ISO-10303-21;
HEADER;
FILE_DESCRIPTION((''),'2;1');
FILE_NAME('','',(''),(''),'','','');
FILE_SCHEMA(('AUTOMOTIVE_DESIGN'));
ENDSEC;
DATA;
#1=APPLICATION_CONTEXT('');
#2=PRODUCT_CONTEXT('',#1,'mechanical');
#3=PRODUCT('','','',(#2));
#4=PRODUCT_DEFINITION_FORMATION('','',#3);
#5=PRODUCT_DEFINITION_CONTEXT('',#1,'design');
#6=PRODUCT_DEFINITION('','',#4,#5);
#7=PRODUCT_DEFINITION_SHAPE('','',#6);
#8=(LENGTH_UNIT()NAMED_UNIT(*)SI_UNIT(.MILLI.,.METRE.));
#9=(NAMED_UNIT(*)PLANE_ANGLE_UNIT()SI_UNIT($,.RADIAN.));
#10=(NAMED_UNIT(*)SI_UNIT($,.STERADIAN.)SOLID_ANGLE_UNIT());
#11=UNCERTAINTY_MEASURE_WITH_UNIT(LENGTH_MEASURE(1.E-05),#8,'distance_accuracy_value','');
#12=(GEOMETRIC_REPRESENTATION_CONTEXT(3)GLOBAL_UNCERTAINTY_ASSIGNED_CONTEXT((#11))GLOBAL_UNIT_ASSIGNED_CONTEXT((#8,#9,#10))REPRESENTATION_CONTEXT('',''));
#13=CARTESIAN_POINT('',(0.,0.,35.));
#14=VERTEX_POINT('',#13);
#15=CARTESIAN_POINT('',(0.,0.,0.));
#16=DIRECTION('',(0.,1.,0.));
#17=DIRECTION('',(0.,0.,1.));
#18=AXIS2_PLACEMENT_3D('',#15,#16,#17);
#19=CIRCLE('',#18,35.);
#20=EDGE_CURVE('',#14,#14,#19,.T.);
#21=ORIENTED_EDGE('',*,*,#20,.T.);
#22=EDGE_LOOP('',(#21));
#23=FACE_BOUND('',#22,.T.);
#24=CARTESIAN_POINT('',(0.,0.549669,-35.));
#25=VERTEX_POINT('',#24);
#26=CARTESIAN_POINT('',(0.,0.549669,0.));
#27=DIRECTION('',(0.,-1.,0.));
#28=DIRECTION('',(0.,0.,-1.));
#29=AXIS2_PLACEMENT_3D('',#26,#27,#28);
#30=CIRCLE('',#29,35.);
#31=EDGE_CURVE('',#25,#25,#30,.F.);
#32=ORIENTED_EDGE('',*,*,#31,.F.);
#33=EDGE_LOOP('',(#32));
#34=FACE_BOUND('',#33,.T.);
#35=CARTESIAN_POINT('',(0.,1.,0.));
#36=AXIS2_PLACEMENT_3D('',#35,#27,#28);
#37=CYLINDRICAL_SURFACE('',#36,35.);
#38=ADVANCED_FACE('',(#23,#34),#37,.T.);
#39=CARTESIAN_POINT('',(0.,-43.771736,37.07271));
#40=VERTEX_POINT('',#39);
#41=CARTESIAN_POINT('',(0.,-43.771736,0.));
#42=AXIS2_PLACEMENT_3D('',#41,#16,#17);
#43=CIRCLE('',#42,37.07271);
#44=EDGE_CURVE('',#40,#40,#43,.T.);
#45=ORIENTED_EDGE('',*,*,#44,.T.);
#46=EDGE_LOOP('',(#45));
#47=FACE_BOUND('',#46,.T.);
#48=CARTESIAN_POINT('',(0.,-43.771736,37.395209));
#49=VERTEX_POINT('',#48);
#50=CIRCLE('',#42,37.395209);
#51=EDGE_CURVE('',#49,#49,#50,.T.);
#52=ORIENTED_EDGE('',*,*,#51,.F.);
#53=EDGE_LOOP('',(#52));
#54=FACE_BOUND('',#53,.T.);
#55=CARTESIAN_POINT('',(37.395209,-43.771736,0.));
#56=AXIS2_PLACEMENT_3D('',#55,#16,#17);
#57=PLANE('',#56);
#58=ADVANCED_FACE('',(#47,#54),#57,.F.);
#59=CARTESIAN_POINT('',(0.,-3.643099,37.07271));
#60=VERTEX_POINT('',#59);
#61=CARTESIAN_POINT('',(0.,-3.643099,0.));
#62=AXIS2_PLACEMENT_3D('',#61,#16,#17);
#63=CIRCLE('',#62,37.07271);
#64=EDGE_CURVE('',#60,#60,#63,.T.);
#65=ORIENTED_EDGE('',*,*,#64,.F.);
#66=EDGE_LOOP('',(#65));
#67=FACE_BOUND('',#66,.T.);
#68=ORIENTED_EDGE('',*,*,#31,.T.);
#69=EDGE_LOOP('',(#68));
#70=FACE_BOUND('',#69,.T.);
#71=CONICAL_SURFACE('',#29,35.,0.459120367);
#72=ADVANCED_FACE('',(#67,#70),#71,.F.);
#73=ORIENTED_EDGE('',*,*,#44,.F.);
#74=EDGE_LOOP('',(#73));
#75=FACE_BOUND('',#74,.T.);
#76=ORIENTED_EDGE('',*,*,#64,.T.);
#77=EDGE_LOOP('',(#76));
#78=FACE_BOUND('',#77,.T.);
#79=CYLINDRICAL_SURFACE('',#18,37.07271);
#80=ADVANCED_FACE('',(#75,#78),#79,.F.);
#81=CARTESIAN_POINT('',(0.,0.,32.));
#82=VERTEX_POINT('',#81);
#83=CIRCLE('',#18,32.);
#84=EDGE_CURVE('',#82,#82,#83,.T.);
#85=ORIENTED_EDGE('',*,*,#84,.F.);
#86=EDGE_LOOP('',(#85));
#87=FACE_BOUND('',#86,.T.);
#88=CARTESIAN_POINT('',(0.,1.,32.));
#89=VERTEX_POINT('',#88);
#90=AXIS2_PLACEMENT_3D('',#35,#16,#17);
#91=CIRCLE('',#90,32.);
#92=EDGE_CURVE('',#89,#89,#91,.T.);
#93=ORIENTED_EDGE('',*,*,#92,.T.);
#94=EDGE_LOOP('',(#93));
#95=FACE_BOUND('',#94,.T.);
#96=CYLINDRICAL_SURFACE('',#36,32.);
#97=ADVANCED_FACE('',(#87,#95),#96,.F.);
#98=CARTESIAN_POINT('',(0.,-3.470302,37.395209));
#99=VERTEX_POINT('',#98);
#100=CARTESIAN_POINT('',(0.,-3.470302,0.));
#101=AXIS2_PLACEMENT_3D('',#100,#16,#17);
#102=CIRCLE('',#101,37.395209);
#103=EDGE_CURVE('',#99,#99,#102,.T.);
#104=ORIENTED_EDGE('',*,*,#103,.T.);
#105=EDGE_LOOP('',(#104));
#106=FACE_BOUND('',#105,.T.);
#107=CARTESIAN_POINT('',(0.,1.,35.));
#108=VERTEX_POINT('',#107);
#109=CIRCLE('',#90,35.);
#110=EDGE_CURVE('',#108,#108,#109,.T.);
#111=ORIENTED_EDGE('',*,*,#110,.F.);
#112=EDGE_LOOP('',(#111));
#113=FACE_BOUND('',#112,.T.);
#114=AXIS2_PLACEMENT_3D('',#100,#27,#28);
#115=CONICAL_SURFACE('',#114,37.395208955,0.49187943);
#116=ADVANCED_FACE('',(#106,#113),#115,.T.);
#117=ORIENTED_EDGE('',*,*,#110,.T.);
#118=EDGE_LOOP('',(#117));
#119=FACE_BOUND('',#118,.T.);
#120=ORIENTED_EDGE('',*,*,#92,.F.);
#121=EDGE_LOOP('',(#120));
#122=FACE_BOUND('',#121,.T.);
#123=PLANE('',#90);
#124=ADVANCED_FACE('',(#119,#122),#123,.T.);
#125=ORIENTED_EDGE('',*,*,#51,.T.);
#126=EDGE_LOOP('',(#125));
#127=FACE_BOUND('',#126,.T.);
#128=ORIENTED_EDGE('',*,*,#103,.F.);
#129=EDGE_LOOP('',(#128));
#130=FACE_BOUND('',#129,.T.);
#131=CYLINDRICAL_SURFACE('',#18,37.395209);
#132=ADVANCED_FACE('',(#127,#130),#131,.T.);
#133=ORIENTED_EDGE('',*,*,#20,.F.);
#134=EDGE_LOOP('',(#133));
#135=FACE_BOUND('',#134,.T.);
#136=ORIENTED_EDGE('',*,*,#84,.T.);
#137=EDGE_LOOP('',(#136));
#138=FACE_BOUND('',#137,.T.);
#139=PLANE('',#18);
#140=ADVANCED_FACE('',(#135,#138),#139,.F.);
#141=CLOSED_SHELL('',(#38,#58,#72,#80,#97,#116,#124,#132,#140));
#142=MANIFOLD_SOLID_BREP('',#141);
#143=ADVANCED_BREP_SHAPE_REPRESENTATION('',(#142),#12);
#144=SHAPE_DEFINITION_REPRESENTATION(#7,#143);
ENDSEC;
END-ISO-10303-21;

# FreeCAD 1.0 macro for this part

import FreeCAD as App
import Part
import Sketcher
Q = App.Units.Quantity


def add_polygon(sketch, points):
    """Adds a closed chain of lines whose ends are joined by coincident constraints."""
    first, n = sketch.GeometryCount, len(points)
    for a, b in zip(points, points[1:] + points[:1]):
        sketch.addGeometry(Part.LineSegment(App.Vector(*a, 0), App.Vector(*b, 0)), False)
    for i in range(n):
        sketch.addConstraint(Sketcher.Constraint("Coincident", first + i, 2, first + (i + 1) % n, 1))

doc = App.newDocument("Part")
body = doc.addObject("PartDesign::Body", "Body")

sketch1 = body.newObject("Sketcher::SketchObject", "Sketch")
sketch1.AttachmentSupport = (doc.getObject("XZ_Plane"), [""])
sketch1.MapMode = "FlatFace"
sketch1.addGeometry(Part.Circle(App.Vector(0, 0, 0), App.Vector(0, 0, 1), 35), False)
sketch1.addGeometry(Part.Circle(App.Vector(0, 0, 0), App.Vector(0, 0, 1), 32), False)
sketch1.addConstraint(Sketcher.Constraint("Coincident", 0, 3, -1, 1))
sketch1.addConstraint(Sketcher.Constraint("Coincident", 1, 3, -1, 1))
sketch1.addConstraint(Sketcher.Constraint("Diameter", 0, Q("70 mm")))
sketch1.addConstraint(Sketcher.Constraint("Diameter", 1, Q("64 mm")))
pad1 = body.newObject("PartDesign::Pad", "Pad")
pad1.Profile = sketch1
pad1.Length = 1
pad1.Reversed = True

sketch2 = body.newObject("Sketcher::SketchObject", "Sketch001")
sketch2.AttachmentSupport = (doc.getObject("XY_Plane"), [""])
sketch2.MapMode = "FlatFace"
add_polygon(sketch2, [(37.4, -3.47), (35, 1), (35, 0.55), (37.07, -3.64), (37.07, -43.77), (37.4, -43.77)])
sketch2.addConstraint(Sketcher.Constraint("Vertical", 1))
sketch2.addConstraint(Sketcher.Constraint("Vertical", 3))
sketch2.addConstraint(Sketcher.Constraint("Horizontal", 4))
sketch2.addConstraint(Sketcher.Constraint("Vertical", 5))
sketch2.addConstraint(Sketcher.Constraint("DistanceX", -1, 1, 0, 2, Q("35 mm")))
sketch2.addConstraint(Sketcher.Constraint("DistanceY", -1, 1, 0, 2, Q("1 mm")))
sketch2.addConstraint(Sketcher.Constraint("DistanceX", 4, 1, 4, 2, Q("0.322499 mm")))
sketch2.addConstraint(Sketcher.Constraint("DistanceY", 1, 2, 1, 1, Q("0.450331 mm")))
sketch2.addConstraint(Sketcher.Constraint("DistanceY", 2, 2, -1, 1, Q("3.643099 mm")))
sketch2.addConstraint(Sketcher.Constraint("Distance", 0, Q("5.071551 mm")))
sketch2.addConstraint(Sketcher.Constraint("DistanceY", 3, 2, 3, 1, Q("40.128637 mm")))
sketch2.addConstraint(Sketcher.Constraint("DistanceY", 5, 1, 5, 2, Q("40.301433 mm")))
revolution = body.newObject("PartDesign::Revolution", "Revolution")
revolution.Profile = sketch2
revolution.ReferenceAxis = (sketch2, ["V_Axis"])
revolution.Angle = 360

doc.recompute()
